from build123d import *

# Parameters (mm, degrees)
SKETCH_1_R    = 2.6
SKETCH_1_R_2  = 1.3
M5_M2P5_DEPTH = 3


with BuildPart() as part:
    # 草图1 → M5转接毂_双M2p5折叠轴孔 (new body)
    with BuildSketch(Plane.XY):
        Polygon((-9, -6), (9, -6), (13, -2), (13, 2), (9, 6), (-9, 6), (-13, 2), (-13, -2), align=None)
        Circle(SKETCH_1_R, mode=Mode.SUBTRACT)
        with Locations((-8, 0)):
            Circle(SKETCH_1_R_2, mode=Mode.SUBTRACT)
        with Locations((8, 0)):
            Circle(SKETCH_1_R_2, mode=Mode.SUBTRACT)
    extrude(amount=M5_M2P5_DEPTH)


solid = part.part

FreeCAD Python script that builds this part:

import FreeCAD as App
import Part
import Sketcher
from FreeCAD import Vector
Q = App.Units.Quantity


def add_polygon(sketch, points):
    """Adds a closed chain of lines whose ends are joined by coincident constraints."""
    first, n = sketch.GeometryCount, len(points)
    for a, b in zip(points, points[1:] + points[:1]):
        sketch.addGeometry(Part.LineSegment(App.Vector(*a, 0), App.Vector(*b, 0)), False)
    for i in range(n):
        sketch.addConstraint(Sketcher.Constraint("Coincident", first + i, 2, first + (i + 1) % n, 1))

doc = App.newDocument("Part")
body = doc.addObject("PartDesign::Body", "Body")

# Sketch on XY plane
sketch1 = body.newObject("Sketcher::SketchObject", "Sketch")
sketch1.AttachmentSupport = (doc.getObject("XY_Plane"), [""])
sketch1.MapMode = "FlatFace"
add_polygon(sketch1, [(-9, -6), (9, -6), (13, -2), (13, 2), (9, 6), (-9, 6), (-13, 2), (-13, -2)])  # lines 0-7
sketch1.addGeometry(Part.Circle(Vector(-8, 0, 0), Vector(0, 0, 1), 1.3), False)  # 8
sketch1.addGeometry(Part.Circle(Vector(0, 0, 0), Vector(0, 0, 1), 2.6), False)  # 9
sketch1.addGeometry(Part.Circle(Vector(8, 0, 0), Vector(0, 0, 1), 1.3), False)  # 10
sketch1.addConstraint([
    Sketcher.Constraint("Horizontal", 0),
    Sketcher.Constraint("Vertical", 2),
    Sketcher.Constraint("Horizontal", 4),
    Sketcher.Constraint("Vertical", 6),
    Sketcher.Constraint("Coincident", 9, 3, -1, 1),
    Sketcher.Constraint("Equal", 8, 10),
    Sketcher.Constraint("Symmetric", 8, 3, 10, 3, -1, 1),
    Sketcher.Constraint("Symmetric", 0, 2, 4, 2, -1, 1),
    Sketcher.Constraint("Symmetric", 1, 2, 5, 2, -1, 1),
    Sketcher.Constraint("PointOnObject", 8, 3, -1),
    Sketcher.Constraint("Perpendicular", 1, 3),
    Sketcher.Constraint("Perpendicular", 5, 7),
    Sketcher.Constraint("Horizontal", 2, 2, 5, 2),
    Sketcher.Constraint("Horizontal", 1, 2, 6, 2),
    Sketcher.Constraint("Vertical", 0, 2, 3, 2),
    Sketcher.Constraint("Diameter", 8, Q("2.6 mm")),
    Sketcher.Constraint("Diameter", 9, Q("5.2 mm")),
    Sketcher.Constraint("DistanceX", 0, 1, 0, 2, Q("18 mm")),
    Sketcher.Constraint("DistanceY", 2, 1, 2, 2, Q("4 mm")),
    Sketcher.Constraint("DistanceX", 8, 3, -1, 1, Q("8 mm")),
    Sketcher.Constraint("DistanceY", 0, 2, -1, 1, Q("6 mm")),
])
pad1 = body.newObject("PartDesign::Pad", "Pad")
pad1.Profile = sketch1
pad1.Length = 3

doc.recompute()
